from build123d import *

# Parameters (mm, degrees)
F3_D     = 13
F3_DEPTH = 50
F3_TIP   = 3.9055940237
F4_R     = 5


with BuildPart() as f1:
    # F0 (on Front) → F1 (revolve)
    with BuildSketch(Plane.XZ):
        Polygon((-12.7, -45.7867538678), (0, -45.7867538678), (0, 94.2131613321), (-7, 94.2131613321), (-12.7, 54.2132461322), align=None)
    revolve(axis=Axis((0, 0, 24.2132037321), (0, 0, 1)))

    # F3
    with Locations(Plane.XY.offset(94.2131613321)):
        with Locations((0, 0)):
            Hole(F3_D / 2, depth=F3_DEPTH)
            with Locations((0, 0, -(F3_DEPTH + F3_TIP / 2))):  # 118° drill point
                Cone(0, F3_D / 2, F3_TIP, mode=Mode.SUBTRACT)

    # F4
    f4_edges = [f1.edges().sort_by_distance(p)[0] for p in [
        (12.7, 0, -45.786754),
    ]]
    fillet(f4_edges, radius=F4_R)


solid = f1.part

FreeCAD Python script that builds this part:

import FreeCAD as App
import Part
import Sketcher

V = App.Vector


def edges_at(feature, points):
    """Names of the edges that pass closest to the given points."""
    edges = feature.Shape.Edges
    near = lambda p: min(range(len(edges)), key=lambda i: edges[i].distToShape(Part.Vertex(*p))[0])
    return sorted({f"Edge{near(p) + 1}" for p in points})

doc = App.newDocument("Part")
body = doc.addObject("PartDesign::Body", "Body")

sketch1 = doc.addObject("Sketcher::SketchObject", "Sketch")
body.addObject(sketch1)
sketch1.AttachmentSupport = (doc.XZ_Plane, [""])
sketch1.MapMode = "FlatFace"
sketch1.addGeometry(Part.LineSegment(V(-13, -46, 0), V(0, -46, 0)), False)
sketch1.addGeometry(Part.LineSegment(V(0, -46, 0), V(0, 94, 0)), False)
sketch1.addGeometry(Part.LineSegment(V(0, 94, 0), V(-7, 94, 0)), False)
sketch1.addGeometry(Part.LineSegment(V(-7, 94, 0), V(-13, 54, 0)), False)
sketch1.addGeometry(Part.LineSegment(V(-13, 54, 0), V(-13, -46, 0)), False)
sketch1.addConstraint(Sketcher.Constraint("Coincident", 0, 2, 1, 1))
sketch1.addConstraint(Sketcher.Constraint("Coincident", 1, 2, 2, 1))
sketch1.addConstraint(Sketcher.Constraint("Coincident", 2, 2, 3, 1))
sketch1.addConstraint(Sketcher.Constraint("Coincident", 3, 2, 4, 1))
sketch1.addConstraint(Sketcher.Constraint("Coincident", 4, 2, 0, 1))
sketch1.addConstraint(Sketcher.Constraint("Horizontal", 0))
sketch1.addConstraint(Sketcher.Constraint("Vertical", 1))
sketch1.addConstraint(Sketcher.Constraint("Horizontal", 2))
sketch1.addConstraint(Sketcher.Constraint("Vertical", 4))
sketch1.addConstraint(Sketcher.Constraint("PointOnObject", 0, 2, -2))
sketch1.addConstraint(Sketcher.Constraint("DistanceX", 2, 2, 2, 1, 7.0))
sketch1.addConstraint(Sketcher.Constraint("DistanceY", 4, 2, 4, 1, 100.0))
sketch1.addConstraint(Sketcher.Constraint("DistanceX", 0, 1, 0, 2, 12.7))
sketch1.addConstraint(Sketcher.Constraint("Distance", 3, 40.404))
sketch1.addConstraint(Sketcher.Constraint("DistanceY", -1, 1, 1, 2, 94.213161))
revolution = doc.addObject("PartDesign::Revolution", "Revolution")
body.addObject(revolution)
revolution.Profile = sketch1
revolution.ReferenceAxis = (sketch1, ["V_Axis"])
revolution.Angle = 360

sketch2 = doc.addObject("Sketcher::SketchObject", "Sketch001")
body.addObject(sketch2)
sketch2.AttachmentSupport = (doc.XY_Plane, [""])
sketch2.MapMode = "FlatFace"
sketch2.AttachmentOffset = App.Placement(V(0, 0, 94.213161), App.Rotation())
sketch2.addGeometry(Part.Circle(V(0, 0, 0), V(0, 0, 1), 6), False)
sketch2.addConstraint(Sketcher.Constraint("Coincident", 0, 3, -1, 1))
sketch2.addConstraint(Sketcher.Constraint("Diameter", 0, 13.0))
doc.recompute()
hole = doc.addObject("PartDesign::Hole", "Hole")
body.addObject(hole)
hole.Profile = sketch2
hole.ThreadType = "None"
hole.Diameter = 13
hole.DepthType = "Dimension"
hole.Depth = 50
hole.DrillPoint = "Angled"
hole.DrillPointAngle = 118
doc.recompute()

fillet = doc.addObject("PartDesign::Fillet", "Fillet")
body.addObject(fillet)
fillet.Base = (hole, edges_at(hole, [(12.7, 0, -45.787)]))
fillet.Radius = 5

doc.recompute()
